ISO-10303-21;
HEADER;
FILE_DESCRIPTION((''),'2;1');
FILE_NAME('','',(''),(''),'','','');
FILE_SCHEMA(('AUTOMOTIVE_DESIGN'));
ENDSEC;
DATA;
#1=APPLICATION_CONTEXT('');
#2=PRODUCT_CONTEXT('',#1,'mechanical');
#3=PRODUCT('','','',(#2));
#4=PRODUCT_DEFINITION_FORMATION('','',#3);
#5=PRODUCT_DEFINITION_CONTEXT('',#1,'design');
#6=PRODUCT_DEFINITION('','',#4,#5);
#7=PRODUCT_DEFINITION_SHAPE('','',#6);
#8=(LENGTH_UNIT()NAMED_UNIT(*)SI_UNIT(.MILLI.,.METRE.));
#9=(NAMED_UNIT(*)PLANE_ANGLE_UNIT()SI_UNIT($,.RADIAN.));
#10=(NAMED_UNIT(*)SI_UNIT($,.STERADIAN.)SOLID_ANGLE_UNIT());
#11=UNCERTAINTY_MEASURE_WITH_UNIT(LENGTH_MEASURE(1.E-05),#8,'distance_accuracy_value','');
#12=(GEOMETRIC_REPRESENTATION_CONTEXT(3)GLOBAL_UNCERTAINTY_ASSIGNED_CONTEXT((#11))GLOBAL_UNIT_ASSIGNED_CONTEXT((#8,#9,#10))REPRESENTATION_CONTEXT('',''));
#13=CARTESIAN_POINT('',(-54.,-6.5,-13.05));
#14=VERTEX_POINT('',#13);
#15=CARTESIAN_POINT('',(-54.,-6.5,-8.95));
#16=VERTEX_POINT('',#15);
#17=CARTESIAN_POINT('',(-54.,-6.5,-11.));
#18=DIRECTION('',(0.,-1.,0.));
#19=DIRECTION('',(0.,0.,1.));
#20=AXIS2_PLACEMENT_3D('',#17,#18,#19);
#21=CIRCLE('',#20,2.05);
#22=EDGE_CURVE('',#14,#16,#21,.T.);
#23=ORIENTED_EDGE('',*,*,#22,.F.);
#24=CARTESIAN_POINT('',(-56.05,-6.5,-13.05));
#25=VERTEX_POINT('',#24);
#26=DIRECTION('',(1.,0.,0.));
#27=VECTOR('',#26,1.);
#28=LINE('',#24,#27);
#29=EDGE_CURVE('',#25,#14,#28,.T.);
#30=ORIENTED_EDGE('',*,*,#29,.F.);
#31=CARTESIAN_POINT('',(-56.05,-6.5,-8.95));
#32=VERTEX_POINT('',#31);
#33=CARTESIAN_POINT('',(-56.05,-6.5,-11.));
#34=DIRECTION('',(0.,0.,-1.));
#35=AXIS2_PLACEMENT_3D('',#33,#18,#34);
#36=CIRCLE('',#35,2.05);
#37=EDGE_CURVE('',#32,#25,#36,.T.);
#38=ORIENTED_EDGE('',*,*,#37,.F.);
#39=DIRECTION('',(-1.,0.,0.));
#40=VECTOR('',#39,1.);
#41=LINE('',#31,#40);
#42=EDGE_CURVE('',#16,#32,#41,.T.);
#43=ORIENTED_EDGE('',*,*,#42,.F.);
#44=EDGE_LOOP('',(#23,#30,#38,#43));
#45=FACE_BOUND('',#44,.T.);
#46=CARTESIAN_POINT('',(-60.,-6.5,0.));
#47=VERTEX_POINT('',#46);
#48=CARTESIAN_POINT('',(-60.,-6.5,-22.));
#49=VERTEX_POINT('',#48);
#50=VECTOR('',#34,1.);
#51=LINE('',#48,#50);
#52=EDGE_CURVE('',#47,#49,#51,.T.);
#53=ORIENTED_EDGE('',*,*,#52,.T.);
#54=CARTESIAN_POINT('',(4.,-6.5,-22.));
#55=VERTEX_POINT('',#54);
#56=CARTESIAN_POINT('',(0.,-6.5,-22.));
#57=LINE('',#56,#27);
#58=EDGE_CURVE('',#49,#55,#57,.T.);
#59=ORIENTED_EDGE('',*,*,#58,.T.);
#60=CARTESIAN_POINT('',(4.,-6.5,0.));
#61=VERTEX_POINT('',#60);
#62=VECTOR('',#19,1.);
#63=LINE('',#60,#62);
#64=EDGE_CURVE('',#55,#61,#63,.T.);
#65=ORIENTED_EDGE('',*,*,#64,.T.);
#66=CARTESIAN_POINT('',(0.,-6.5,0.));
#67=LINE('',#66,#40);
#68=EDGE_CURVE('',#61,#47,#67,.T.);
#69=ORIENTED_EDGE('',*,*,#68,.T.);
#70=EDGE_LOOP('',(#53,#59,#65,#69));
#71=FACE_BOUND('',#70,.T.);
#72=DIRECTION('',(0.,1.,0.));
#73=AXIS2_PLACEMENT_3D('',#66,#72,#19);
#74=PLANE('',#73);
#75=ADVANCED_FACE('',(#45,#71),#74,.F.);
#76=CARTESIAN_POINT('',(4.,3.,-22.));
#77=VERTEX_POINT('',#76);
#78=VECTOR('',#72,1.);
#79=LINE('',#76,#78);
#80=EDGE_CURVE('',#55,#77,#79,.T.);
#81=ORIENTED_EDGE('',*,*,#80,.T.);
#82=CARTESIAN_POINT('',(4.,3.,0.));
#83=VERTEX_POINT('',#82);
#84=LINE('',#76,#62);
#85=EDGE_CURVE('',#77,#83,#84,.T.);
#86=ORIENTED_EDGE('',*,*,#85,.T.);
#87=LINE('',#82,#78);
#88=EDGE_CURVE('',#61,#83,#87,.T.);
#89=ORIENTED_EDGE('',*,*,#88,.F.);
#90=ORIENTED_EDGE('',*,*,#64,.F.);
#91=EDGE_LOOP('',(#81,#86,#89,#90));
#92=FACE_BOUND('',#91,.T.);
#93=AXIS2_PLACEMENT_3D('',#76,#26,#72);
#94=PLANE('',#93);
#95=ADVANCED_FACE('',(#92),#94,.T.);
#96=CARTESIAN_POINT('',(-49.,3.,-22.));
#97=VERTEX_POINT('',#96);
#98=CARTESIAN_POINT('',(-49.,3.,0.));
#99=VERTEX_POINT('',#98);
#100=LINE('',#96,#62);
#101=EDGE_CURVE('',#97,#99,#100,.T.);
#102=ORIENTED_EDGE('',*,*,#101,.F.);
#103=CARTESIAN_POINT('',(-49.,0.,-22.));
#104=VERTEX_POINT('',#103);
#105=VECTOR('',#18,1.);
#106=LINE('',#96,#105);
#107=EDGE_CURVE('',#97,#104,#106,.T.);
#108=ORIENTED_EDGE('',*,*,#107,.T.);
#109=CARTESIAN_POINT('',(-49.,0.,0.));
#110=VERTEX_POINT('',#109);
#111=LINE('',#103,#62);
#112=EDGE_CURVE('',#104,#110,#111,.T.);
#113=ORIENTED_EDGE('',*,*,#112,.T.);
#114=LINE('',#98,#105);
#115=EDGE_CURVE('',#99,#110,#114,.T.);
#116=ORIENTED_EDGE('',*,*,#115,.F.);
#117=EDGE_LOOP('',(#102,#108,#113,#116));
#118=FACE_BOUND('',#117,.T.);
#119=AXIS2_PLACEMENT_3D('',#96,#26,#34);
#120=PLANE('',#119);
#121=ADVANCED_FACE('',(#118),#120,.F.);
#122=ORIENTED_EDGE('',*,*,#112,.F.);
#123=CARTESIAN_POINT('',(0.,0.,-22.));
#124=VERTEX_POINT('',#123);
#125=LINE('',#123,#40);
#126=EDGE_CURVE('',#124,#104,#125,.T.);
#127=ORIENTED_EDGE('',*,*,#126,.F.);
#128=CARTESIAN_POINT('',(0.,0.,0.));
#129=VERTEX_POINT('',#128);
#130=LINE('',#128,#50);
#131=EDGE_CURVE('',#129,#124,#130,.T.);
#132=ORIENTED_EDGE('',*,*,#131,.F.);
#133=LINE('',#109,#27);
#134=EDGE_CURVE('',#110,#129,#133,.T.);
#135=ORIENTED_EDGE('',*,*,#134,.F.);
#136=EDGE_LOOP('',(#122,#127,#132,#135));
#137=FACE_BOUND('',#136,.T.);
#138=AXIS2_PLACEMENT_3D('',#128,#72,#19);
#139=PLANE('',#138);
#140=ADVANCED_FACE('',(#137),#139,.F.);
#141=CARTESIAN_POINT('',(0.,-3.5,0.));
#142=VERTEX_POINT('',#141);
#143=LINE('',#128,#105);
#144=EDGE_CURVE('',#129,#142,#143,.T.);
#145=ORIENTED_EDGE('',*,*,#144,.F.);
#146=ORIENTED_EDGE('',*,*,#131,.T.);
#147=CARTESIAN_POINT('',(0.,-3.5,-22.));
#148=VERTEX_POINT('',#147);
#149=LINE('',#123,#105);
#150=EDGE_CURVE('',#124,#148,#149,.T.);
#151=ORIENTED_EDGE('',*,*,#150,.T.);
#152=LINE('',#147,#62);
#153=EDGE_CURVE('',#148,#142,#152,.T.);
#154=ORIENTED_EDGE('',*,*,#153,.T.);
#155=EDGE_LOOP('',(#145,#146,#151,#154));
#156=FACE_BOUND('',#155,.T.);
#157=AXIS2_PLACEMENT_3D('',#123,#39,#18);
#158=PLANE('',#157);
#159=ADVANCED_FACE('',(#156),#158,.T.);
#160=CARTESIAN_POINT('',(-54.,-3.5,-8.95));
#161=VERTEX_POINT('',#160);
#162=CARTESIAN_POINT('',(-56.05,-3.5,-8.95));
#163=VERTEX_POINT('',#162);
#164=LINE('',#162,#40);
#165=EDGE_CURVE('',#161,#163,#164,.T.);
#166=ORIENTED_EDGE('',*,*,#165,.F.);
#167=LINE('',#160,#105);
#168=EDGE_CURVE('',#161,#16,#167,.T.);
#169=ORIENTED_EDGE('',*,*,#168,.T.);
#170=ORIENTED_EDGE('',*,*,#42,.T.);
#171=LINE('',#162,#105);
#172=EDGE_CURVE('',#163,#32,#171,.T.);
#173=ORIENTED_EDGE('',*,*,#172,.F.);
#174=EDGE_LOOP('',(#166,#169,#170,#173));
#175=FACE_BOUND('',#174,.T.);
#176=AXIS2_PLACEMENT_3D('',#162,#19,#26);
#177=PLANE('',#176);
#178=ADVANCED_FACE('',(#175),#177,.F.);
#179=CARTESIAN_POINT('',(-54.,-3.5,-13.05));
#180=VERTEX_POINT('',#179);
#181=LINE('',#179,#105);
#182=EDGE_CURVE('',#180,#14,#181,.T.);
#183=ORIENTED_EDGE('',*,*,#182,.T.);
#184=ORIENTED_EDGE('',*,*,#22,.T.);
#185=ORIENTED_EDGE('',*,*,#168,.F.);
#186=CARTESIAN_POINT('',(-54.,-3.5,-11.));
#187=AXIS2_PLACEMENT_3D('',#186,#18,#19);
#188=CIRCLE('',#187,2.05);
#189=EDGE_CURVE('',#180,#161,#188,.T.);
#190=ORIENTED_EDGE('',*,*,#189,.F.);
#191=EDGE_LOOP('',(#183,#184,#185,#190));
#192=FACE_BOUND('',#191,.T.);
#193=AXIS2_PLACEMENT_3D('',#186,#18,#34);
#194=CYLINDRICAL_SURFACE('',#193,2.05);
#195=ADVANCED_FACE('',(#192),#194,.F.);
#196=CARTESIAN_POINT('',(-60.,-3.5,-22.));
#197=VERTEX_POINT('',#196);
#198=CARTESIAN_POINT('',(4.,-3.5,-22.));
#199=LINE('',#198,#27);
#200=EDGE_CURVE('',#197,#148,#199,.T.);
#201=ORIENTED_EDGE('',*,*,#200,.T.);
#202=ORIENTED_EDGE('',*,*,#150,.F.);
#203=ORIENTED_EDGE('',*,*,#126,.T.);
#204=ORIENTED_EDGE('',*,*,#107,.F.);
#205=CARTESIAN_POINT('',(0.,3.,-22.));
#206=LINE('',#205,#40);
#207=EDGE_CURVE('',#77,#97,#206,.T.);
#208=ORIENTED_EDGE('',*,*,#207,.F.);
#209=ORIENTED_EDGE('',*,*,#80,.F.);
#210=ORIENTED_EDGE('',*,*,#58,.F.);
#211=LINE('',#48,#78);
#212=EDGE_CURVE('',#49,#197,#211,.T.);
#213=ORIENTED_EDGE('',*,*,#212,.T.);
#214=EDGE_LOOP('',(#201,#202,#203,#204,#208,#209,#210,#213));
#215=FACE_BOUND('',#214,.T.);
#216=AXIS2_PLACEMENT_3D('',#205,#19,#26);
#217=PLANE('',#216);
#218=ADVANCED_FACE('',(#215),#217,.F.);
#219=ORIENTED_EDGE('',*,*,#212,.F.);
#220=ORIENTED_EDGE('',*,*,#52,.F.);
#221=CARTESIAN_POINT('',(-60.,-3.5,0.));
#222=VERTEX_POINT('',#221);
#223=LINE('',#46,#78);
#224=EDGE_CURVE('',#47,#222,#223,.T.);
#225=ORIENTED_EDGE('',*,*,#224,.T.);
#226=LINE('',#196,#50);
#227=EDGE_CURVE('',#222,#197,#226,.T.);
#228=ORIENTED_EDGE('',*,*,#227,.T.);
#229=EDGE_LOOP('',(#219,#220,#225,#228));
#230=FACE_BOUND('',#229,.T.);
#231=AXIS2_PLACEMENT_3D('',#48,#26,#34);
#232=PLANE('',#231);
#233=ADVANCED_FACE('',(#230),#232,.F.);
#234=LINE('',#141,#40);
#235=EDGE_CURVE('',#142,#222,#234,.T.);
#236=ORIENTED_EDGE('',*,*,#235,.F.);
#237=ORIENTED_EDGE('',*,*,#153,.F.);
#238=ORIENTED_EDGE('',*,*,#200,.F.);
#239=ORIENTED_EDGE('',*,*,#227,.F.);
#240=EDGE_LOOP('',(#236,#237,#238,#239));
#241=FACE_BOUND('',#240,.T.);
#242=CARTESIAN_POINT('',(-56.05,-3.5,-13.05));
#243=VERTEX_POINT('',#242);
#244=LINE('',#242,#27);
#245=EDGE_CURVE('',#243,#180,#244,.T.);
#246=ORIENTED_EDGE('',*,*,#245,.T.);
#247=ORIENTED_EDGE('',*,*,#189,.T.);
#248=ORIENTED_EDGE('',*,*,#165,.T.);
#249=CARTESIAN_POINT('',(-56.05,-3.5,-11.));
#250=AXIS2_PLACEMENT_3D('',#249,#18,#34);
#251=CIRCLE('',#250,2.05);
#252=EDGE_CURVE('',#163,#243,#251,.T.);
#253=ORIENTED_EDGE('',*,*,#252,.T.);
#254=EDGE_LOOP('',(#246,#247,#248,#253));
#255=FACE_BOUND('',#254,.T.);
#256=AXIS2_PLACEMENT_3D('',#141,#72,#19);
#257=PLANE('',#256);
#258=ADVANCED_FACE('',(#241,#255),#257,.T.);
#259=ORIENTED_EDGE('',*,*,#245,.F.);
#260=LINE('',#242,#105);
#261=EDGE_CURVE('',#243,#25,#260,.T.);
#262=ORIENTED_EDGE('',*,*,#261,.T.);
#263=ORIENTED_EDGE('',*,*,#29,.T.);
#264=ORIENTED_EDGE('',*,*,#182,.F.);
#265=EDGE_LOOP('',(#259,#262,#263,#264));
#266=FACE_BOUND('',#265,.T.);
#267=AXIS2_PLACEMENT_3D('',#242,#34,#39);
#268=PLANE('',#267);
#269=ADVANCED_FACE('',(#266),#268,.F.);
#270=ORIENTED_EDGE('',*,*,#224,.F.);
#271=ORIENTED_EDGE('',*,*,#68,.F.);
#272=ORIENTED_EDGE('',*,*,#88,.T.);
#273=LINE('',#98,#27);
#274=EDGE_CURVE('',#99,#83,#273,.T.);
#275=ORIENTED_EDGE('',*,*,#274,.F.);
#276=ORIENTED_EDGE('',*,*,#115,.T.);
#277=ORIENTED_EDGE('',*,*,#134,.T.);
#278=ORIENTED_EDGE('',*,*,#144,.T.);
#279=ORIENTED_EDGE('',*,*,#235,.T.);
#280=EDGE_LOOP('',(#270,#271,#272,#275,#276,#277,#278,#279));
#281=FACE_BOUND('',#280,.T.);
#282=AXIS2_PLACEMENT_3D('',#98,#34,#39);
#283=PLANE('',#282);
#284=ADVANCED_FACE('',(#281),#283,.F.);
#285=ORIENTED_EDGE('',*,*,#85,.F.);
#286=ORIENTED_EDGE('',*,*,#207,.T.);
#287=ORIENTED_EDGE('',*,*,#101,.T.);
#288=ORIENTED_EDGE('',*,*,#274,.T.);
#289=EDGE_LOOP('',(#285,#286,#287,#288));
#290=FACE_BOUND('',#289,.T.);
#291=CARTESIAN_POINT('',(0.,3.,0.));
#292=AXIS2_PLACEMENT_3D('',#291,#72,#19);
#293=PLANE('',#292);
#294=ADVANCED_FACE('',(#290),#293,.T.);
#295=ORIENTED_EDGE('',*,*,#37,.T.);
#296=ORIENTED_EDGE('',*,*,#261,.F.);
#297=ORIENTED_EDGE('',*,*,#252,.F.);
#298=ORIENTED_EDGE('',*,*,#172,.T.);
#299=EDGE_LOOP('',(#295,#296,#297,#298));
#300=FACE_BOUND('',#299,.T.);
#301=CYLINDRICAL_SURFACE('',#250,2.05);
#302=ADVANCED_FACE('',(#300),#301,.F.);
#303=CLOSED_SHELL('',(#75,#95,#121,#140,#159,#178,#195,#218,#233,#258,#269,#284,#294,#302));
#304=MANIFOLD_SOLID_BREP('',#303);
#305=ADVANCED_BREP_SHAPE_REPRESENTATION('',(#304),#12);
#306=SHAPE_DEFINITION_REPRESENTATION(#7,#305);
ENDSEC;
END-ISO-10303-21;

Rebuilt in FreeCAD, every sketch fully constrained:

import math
import FreeCAD as App
import Part
import Sketcher

V = App.Vector


def add_polygon(sketch, points):
    """Adds a closed chain of lines whose ends are joined by coincident constraints."""
    first, n = sketch.GeometryCount, len(points)
    for a, b in zip(points, points[1:] + points[:1]):
        sketch.addGeometry(Part.LineSegment(App.Vector(*a, 0), App.Vector(*b, 0)), False)
    for i in range(n):
        sketch.addConstraint(Sketcher.Constraint("Coincident", first + i, 2, first + (i + 1) % n, 1))

doc = App.newDocument("Part")
body = doc.addObject("PartDesign::Body", "Body")

sketch1 = body.newObject("Sketcher::SketchObject", "Sketch")
sketch1.AttachmentSupport = (doc.getObject("XZ_Plane"), [""])
sketch1.MapMode = "FlatFace"
add_polygon(sketch1, [(-49, -22), (-49, 0), (0, 0), (0, -22)])
sketch1.addConstraint(Sketcher.Constraint("Vertical", 0))
sketch1.addConstraint(Sketcher.Constraint("Horizontal", 1))
sketch1.addConstraint(Sketcher.Constraint("Vertical", 2))
sketch1.addConstraint(Sketcher.Constraint("Horizontal", 3))
sketch1.addConstraint(Sketcher.Constraint("Coincident", 1, 2, -1, 1))
sketch1.addConstraint(Sketcher.Constraint("DistanceX", 1, 1, 1, 2, 49.0))
sketch1.addConstraint(Sketcher.Constraint("DistanceY", 0, 1, 0, 2, 22.0))
pad1 = body.newObject("PartDesign::Pad", "Pad")
pad1.Profile = sketch1
pad1.Length = 3
pad1.Reversed = True

sketch2 = body.newObject("Sketcher::SketchObject", "Sketch001")
sketch2.AttachmentSupport = (doc.getObject("XY_Plane"), [""])
sketch2.MapMode = "FlatFace"
add_polygon(sketch2, [(0, -3.5), (4, -3.5), (4, 3), (0, 3)])
sketch2.addConstraint(Sketcher.Constraint("Horizontal", 0))
sketch2.addConstraint(Sketcher.Constraint("Vertical", 1))
sketch2.addConstraint(Sketcher.Constraint("Horizontal", 2))
sketch2.addConstraint(Sketcher.Constraint("Vertical", 3))
sketch2.addConstraint(Sketcher.Constraint("PointOnObject", 2, 2, -2))
sketch2.addConstraint(Sketcher.Constraint("DistanceX", 0, 1, 0, 2, 4.0))
sketch2.addConstraint(Sketcher.Constraint("DistanceY", 1, 1, 1, 2, 6.5))
sketch2.addConstraint(Sketcher.Constraint("DistanceY", -1, 1, 1, 2, 3.0))
pad2 = body.newObject("PartDesign::Pad", "Pad001")
pad2.Profile = sketch2
pad2.Length = 22
pad2.Reversed = True

sketch3 = body.newObject("Sketcher::SketchObject", "Sketch002")
sketch3.AttachmentSupport = (doc.getObject("XZ_Plane"), [""])
sketch3.MapMode = "FlatFace"
sketch3.AttachmentOffset = App.Placement(V(0, 0, 3.5), App.Rotation())
add_polygon(sketch3, [(-60, 0), (-60, -22), (4, -22), (4, 0)])
sketch3.addConstraint(Sketcher.Constraint("Vertical", 0))
sketch3.addConstraint(Sketcher.Constraint("Horizontal", 1))
sketch3.addConstraint(Sketcher.Constraint("Vertical", 2))
sketch3.addConstraint(Sketcher.Constraint("Horizontal", 3))
sketch3.addConstraint(Sketcher.Constraint("PointOnObject", 2, 2, -1))
sketch3.addConstraint(Sketcher.Constraint("DistanceX", 1, 1, 1, 2, 64.0))
sketch3.addConstraint(Sketcher.Constraint("DistanceY", 0, 2, 0, 1, 22.0))
sketch3.addConstraint(Sketcher.Constraint("DistanceX", 0, 2, -1, 1, 60.0))
pad3 = body.newObject("PartDesign::Pad", "Pad002")
pad3.Profile = sketch3
pad3.Length = 3

sketch4 = body.newObject("Sketcher::SketchObject", "Sketch003")
sketch4.AttachmentSupport = (doc.getObject("XZ_Plane"), [""])
sketch4.MapMode = "FlatFace"
sketch4.AttachmentOffset = App.Placement(V(0, 0, 6.5), App.Rotation())
sketch4.addGeometry(Part.LineSegment(V(-54, -8.9, 0), V(-56, -8.9, 0)), False)
sketch4.addGeometry(Part.ArcOfCircle(Part.Circle(V(-56, -11, 0), V(0, 0, 1), 2), math.radians(90), math.radians(270)), False)
sketch4.addGeometry(Part.LineSegment(V(-56, -13.1, 0), V(-54, -13.1, 0)), False)
sketch4.addGeometry(Part.ArcOfCircle(Part.Circle(V(-54, -11, 0), V(0, 0, 1), 2), math.radians(-90), math.radians(90)), False)
sketch4.addConstraint(Sketcher.Constraint("Tangent", 0, 2, 1, 1))
sketch4.addConstraint(Sketcher.Constraint("Tangent", 1, 2, 2, 1))
sketch4.addConstraint(Sketcher.Constraint("Tangent", 2, 2, 3, 1))
sketch4.addConstraint(Sketcher.Constraint("Tangent", 3, 2, 0, 1))
sketch4.addConstraint(Sketcher.Constraint("Horizontal", 0))
sketch4.addConstraint(Sketcher.Constraint("Horizontal", 2))
sketch4.addConstraint(Sketcher.Constraint("Radius", 1, 2.05))
sketch4.addConstraint(Sketcher.Constraint("DistanceY", 1, 3, -1, 1, 11.0))
sketch4.addConstraint(Sketcher.Constraint("DistanceX", 3, 3, -1, 1, 54.0))
sketch4.addConstraint(Sketcher.Constraint("DistanceX", 0, 2, 0, 1, 2.05))
pocket1 = body.newObject("PartDesign::Pocket", "Pocket")
pocket1.Profile = sketch4
pocket1.Length = 3

doc.recompute()
